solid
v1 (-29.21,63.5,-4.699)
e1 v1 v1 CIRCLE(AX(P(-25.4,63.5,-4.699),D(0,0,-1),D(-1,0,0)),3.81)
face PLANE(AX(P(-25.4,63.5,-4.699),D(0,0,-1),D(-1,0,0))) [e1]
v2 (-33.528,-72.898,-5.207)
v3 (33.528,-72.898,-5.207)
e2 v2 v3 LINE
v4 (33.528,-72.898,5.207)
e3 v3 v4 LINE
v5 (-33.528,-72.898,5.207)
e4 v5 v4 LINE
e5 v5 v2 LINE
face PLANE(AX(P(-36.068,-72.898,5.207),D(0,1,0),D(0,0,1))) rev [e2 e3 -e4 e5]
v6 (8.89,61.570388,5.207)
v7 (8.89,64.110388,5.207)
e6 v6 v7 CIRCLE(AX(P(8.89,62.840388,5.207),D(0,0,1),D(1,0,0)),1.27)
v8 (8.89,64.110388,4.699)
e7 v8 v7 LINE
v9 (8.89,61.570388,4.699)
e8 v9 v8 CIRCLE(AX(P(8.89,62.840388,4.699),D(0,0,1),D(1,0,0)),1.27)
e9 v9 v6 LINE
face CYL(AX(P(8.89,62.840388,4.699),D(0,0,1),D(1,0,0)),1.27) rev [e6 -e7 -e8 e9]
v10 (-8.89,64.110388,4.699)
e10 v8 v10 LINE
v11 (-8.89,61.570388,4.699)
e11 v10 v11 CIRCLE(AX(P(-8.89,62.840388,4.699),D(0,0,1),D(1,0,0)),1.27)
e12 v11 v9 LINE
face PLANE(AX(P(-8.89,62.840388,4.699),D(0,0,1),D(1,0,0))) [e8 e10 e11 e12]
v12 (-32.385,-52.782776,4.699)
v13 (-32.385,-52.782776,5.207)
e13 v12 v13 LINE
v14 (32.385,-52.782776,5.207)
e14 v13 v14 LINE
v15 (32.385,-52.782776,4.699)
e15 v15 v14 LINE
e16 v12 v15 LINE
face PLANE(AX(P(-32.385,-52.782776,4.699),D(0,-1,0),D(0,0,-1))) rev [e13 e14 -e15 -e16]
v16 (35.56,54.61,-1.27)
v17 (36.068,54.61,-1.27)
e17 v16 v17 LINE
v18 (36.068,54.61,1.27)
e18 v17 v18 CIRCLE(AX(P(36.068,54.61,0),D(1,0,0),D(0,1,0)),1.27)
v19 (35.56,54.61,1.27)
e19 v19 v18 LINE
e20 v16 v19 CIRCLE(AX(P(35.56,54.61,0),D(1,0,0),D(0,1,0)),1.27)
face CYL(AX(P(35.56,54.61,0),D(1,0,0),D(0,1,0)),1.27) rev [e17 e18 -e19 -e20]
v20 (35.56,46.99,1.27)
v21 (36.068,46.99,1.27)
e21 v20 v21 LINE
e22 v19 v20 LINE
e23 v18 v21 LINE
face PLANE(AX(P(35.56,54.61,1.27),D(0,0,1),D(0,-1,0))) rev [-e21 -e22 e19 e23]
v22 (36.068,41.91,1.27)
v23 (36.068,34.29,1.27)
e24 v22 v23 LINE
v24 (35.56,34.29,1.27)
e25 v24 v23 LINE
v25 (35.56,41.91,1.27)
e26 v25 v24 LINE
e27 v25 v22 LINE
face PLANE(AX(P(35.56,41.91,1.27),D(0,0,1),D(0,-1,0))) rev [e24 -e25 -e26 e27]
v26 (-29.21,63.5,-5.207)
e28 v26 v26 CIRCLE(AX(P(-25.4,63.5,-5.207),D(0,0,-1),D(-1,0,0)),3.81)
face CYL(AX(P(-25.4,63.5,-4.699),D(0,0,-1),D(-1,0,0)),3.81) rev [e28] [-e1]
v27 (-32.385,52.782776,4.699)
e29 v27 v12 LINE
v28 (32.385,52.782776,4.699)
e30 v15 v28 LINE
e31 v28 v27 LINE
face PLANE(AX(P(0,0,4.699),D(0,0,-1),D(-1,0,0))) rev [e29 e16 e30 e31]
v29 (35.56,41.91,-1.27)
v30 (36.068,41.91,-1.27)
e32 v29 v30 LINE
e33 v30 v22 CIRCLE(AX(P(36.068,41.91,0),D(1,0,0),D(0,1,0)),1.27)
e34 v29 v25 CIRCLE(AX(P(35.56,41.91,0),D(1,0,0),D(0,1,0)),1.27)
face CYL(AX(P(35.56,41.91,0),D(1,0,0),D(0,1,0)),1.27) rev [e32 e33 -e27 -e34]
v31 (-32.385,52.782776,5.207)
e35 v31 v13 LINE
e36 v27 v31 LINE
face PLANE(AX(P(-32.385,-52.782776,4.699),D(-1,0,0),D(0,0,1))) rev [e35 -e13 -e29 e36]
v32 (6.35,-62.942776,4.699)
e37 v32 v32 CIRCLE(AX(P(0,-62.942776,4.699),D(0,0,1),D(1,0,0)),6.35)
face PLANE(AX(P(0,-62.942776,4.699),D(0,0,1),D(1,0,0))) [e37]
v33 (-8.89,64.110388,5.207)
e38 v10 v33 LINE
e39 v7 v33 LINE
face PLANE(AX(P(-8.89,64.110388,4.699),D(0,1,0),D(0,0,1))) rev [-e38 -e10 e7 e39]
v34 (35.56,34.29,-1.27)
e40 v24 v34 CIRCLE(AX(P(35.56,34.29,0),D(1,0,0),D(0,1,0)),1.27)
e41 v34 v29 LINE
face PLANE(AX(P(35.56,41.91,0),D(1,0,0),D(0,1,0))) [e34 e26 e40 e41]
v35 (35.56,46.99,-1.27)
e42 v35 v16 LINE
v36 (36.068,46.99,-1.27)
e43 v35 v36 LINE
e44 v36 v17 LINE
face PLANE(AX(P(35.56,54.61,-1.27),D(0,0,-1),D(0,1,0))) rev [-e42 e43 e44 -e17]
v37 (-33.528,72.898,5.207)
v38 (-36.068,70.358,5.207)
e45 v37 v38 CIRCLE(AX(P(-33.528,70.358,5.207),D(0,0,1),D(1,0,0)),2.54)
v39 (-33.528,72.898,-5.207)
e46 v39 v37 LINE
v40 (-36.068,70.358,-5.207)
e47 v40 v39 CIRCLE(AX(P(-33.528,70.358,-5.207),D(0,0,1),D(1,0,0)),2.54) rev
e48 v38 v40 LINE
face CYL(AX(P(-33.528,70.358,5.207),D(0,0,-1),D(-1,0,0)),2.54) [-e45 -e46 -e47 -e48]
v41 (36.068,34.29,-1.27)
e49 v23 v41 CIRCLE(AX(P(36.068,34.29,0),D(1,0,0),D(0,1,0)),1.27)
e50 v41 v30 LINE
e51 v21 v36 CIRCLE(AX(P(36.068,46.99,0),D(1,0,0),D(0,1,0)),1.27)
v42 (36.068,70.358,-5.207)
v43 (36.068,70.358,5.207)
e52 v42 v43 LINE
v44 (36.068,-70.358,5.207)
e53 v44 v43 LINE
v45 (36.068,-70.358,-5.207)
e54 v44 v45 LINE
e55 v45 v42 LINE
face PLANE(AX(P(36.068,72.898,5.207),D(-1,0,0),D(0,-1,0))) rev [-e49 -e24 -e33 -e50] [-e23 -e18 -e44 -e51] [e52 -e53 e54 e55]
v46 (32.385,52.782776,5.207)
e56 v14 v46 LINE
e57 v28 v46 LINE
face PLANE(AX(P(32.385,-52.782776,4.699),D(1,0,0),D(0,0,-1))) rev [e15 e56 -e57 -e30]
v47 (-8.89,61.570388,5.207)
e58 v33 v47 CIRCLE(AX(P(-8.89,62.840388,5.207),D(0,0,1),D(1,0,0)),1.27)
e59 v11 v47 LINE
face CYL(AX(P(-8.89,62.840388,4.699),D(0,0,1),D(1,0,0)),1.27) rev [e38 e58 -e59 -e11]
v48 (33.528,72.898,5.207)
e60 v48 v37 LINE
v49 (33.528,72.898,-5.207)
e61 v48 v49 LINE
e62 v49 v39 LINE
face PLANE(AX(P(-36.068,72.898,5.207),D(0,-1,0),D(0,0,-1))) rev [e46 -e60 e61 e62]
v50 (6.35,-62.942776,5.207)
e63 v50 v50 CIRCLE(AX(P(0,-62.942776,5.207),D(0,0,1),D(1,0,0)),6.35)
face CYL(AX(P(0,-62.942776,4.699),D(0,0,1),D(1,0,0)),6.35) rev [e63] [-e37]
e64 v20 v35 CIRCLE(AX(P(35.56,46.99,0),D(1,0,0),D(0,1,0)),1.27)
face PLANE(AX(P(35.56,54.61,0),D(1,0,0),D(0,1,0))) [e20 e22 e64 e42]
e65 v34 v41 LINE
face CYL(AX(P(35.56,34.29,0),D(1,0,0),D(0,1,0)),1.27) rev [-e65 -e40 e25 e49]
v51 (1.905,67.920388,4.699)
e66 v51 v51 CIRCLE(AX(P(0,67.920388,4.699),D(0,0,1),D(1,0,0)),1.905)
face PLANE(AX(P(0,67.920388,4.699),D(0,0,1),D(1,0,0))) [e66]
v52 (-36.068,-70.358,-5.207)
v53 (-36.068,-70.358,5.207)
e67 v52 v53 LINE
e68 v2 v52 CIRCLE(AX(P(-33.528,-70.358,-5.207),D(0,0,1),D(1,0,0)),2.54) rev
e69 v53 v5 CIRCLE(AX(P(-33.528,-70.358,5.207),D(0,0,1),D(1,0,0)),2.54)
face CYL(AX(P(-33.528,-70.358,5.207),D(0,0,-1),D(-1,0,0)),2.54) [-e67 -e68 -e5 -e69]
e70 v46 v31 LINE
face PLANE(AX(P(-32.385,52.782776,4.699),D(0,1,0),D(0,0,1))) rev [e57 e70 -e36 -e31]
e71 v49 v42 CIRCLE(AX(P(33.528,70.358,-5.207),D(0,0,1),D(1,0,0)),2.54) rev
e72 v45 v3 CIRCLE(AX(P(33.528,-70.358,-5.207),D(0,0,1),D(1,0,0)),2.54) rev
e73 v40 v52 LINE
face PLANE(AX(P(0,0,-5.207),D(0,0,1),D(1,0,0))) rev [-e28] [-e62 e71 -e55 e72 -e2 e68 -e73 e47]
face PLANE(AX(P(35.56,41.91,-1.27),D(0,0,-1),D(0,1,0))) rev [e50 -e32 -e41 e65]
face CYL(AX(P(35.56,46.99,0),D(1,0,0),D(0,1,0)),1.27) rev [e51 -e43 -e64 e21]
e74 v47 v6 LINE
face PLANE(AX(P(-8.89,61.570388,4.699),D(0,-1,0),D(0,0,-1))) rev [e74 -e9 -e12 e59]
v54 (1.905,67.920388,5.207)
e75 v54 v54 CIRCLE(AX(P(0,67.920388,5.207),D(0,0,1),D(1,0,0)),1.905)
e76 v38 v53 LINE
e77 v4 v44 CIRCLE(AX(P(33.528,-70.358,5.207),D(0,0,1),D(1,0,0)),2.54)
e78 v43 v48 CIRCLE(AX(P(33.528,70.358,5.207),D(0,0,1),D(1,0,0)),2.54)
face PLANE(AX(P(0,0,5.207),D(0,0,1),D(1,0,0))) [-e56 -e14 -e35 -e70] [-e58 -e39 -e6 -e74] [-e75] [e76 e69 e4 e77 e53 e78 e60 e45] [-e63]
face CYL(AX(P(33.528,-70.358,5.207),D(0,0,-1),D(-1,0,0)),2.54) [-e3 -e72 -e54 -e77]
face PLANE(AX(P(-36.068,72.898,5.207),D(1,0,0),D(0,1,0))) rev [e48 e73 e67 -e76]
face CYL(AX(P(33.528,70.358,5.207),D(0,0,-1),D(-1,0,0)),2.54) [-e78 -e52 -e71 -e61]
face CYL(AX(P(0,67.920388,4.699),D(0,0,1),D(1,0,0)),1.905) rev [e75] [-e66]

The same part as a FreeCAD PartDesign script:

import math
import FreeCAD as App
import Part
import Sketcher
from FreeCAD import Vector
Q = App.Units.Quantity


def edges_at(feature, points):
    """Names of the edges that pass closest to the given points."""
    edges = feature.Shape.Edges
    near = lambda p: min(range(len(edges)), key=lambda i: edges[i].distToShape(Part.Vertex(*p))[0])
    return sorted({f"Edge{near(p) + 1}" for p in points})

doc = App.newDocument("Part")
params = doc.addObject("Spreadsheet::Sheet", "Params")
for row, (alias, value) in enumerate([
    ("sketch1_width", "2.84 in"),
    ("sketch1_height", "5.74 in"),
    ("pad1_length", "0.41 in"),
    ("fillet_radius", "0.1 in"),
    ("sketch2_diameter", "0.5 in"),
    ("sketch2_diameter2", "0.15 in"),
    ("sketch2_radius", "0.05 in"),
    ("sketch2_width", "0.7 in"),
    ("sketch2_width2", "2.55 in"),
    ("pocket1_length", "0.02 in"),
    ("sketch3_diameter", "0.3 in"),
    ("pocket2_length", "0.02 in"),
    ("sketch4_radius", "0.05 in"),
    ("sketch4_width", "0.3 in"),
    ("pocket3_length", "0.02 in"),
], start=1):
    params.set(f"A{row}", alias)
    params.set(f"B{row}", "=" + value)
    params.setAlias(f"B{row}", alias)

body = doc.addObject("PartDesign::Body", "Body")

# Sketch on XY plane
sketch1 = body.newObject("Sketcher::SketchObject", "Sketch")
sketch1.AttachmentSupport = (doc.getObject("XY_Plane"), [""])
sketch1.MapMode = "FlatFace"
sketch1.addGeometry([
    Part.LineSegment(Vector(-36.068, 72.898, 0), Vector(-36.068, -72.898, 0)),
    Part.LineSegment(Vector(-36.068, -72.898, 0), Vector(36.068, -72.898, 0)),
    Part.LineSegment(Vector(36.068, -72.898, 0), Vector(36.068, 72.898, 0)),
    Part.LineSegment(Vector(36.068, 72.898, 0), Vector(-36.068, 72.898, 0)),
], False)
sketch1.addConstraint([
    Sketcher.Constraint("Coincident", 0, 2, 1, 1),
    Sketcher.Constraint("Coincident", 1, 2, 2, 1),
    Sketcher.Constraint("Coincident", 2, 2, 3, 1),
    Sketcher.Constraint("Coincident", 3, 2, 0, 1),
    Sketcher.Constraint("Vertical", 0),
    Sketcher.Constraint("Horizontal", 1),
    Sketcher.Constraint("Vertical", 2),
    Sketcher.Constraint("Horizontal", 3),
    Sketcher.Constraint("Symmetric", 0, 2, 2, 2, -1, 1),
    Sketcher.Constraint("DistanceX", 1, 1, 1, 2, Q("2.84 in")),
    Sketcher.Constraint("DistanceY", 0, 2, 0, 1, Q("5.74 in")),
])
sketch1.setExpression("Constraints[9]", "Params.sketch1_width")
sketch1.setExpression("Constraints[10]", "Params.sketch1_height")
pad1 = body.newObject("PartDesign::Pad", "Pad")
pad1.Profile = sketch1
pad1.setExpression("Length", "Params.pad1_length")
pad1.Midplane = True
doc.recompute()

fillet = body.newObject("PartDesign::Fillet", "Fillet")
fillet.Base = (pad1, edges_at(pad1, [
    (36.068, -72.898, 0),
    (-36.068, -72.898, 0),
    (-36.068, 72.898, 0),
    (36.068, 72.898, 0),
]))
fillet.setExpression("Radius", "Params.fillet_radius")

# Sketch on XY plane
sketch2 = body.newObject("Sketcher::SketchObject", "Sketch001")
sketch2.AttachmentSupport = (doc.getObject("XY_Plane"), [""])
sketch2.MapMode = "FlatFace"
sketch2.AttachmentOffset = App.Placement(Vector(0, 0, 0.205 * 25.4), App.Rotation())
sketch2.addGeometry([
    Part.Circle(Vector(0, -62.942776, 0), Vector(0, 0, 1), 6.35),  # 0
    Part.Circle(Vector(0, 67.920388, 0), Vector(0, 0, 1), 1.905),  # 1
    Part.LineSegment(Vector(-32.385, 52.782776, 0), Vector(-32.385, -52.782776, 0)),  # 2
    Part.LineSegment(Vector(-32.385, -52.782776, 0), Vector(32.385, -52.782776, 0)),  # 3
    Part.LineSegment(Vector(32.385, -52.782776, 0), Vector(32.385, 52.782776, 0)),  # 4
    Part.LineSegment(Vector(32.385, 52.782776, 0), Vector(-32.385, 52.782776, 0)),  # 5
    Part.LineSegment(Vector(8.89, 64.110388, 0), Vector(-8.89, 64.110388, 0)),  # 6
    Part.ArcOfCircle(Part.Circle(Vector(-8.89, 62.840388, 0), Vector(0, 0, 1), 1.27), math.radians(90), math.radians(270)),  # 7
    Part.LineSegment(Vector(-8.89, 61.570388, 0), Vector(8.89, 61.570388, 0)),  # 8
    Part.ArcOfCircle(Part.Circle(Vector(8.89, 62.840388, 0), Vector(0, 0, 1), 1.27), math.radians(-90), math.radians(90)),  # 9
], False)
sketch2.addConstraint([
    Sketcher.Constraint("Coincident", 2, 2, 3, 1),
    Sketcher.Constraint("Coincident", 3, 2, 4, 1),
    Sketcher.Constraint("Coincident", 4, 2, 5, 1),
    Sketcher.Constraint("Coincident", 5, 2, 2, 1),
    Sketcher.Constraint("Tangent", 6, 2, 7, 1),
    Sketcher.Constraint("Tangent", 7, 2, 8, 1),
    Sketcher.Constraint("Tangent", 8, 2, 9, 1),
    Sketcher.Constraint("Tangent", 9, 2, 6, 1),
    Sketcher.Constraint("Vertical", 2),
    Sketcher.Constraint("Horizontal", 3),
    Sketcher.Constraint("Vertical", 4),
    Sketcher.Constraint("Horizontal", 5),
    Sketcher.Constraint("Horizontal", 6),
    Sketcher.Constraint("Horizontal", 8),
    Sketcher.Constraint("Symmetric", 2, 2, 4, 2, -1, 1),
    Sketcher.Constraint("PointOnObject", 0, 3, -2),
    Sketcher.Constraint("PointOnObject", 1, 3, -2),
    Sketcher.Constraint("Diameter", 0, Q("0.5 in")),
    Sketcher.Constraint("Diameter", 1, Q("0.15 in")),
    Sketcher.Constraint("Radius", 7, Q("0.05 in")),
    Sketcher.Constraint("DistanceX", 6, 2, 6, 1, Q("0.7 in")),
    Sketcher.Constraint("DistanceX", 3, 1, 3, 2, Q("2.55 in")),
    Sketcher.Constraint("DistanceY", 7, 3, 1, 3, Q("0.2 in")),
    Sketcher.Constraint("DistanceY", 0, 3, 2, 2, Q("0.4 in")),
    Sketcher.Constraint("DistanceX", 7, 3, -1, 1, Q("0.35 in")),
    Sketcher.Constraint("DistanceY", 2, 2, 2, 1, 105.565551),
    Sketcher.Constraint("DistanceY", -1, 1, 1, 3, 67.920388),
])
sketch2.setExpression("Constraints[17]", "Params.sketch2_diameter")
sketch2.setExpression("Constraints[18]", "Params.sketch2_diameter2")
sketch2.setExpression("Constraints[19]", "Params.sketch2_radius")
sketch2.setExpression("Constraints[20]", "Params.sketch2_width")
sketch2.setExpression("Constraints[21]", "Params.sketch2_width2")
pocket1 = body.newObject("PartDesign::Pocket", "Pocket")
pocket1.Profile = sketch2
pocket1.setExpression("Length", "Params.pocket1_length")

# Sketch on XY plane
sketch3 = body.newObject("Sketcher::SketchObject", "Sketch002")
sketch3.AttachmentSupport = (doc.getObject("XY_Plane"), [""])
sketch3.MapMode = "FlatFace"
sketch3.AttachmentOffset = App.Placement(Vector(0, 0, -0.205 * 25.4), App.Rotation())
sketch3.addGeometry(Part.Circle(Vector(-25.4, 63.5, 0), Vector(0, 0, 1), 3.81), False)
sketch3.addConstraint([
    Sketcher.Constraint("Diameter", 0, Q("0.3 in")),
    Sketcher.Constraint("DistanceX", 0, 3, -1, 1, Q("1 in")),
    Sketcher.Constraint("DistanceY", -1, 1, 0, 3, Q("2.5 in")),
])
sketch3.setExpression("Constraints[0]", "Params.sketch3_diameter")
pocket2 = body.newObject("PartDesign::Pocket", "Pocket001")
pocket2.Profile = sketch3
pocket2.setExpression("Length", "Params.pocket2_length")
pocket2.Reversed = True

# Sketch on YZ plane
sketch4 = body.newObject("Sketcher::SketchObject", "Sketch003")
sketch4.AttachmentSupport = (doc.getObject("YZ_Plane"), [""])
sketch4.MapMode = "FlatFace"
sketch4.AttachmentOffset = App.Placement(Vector(0, 0, 1.42 * 25.4), App.Rotation())
sketch4.addGeometry([
    Part.LineSegment(Vector(46.99, -1.27, 0), Vector(54.61, -1.27, 0)),  # 0
    Part.ArcOfCircle(Part.Circle(Vector(54.61, 0, 0), Vector(0, 0, 1), 1.27), math.radians(-90), math.radians(90)),  # 1
    Part.LineSegment(Vector(54.61, 1.27, 0), Vector(46.99, 1.27, 0)),  # 2
    Part.ArcOfCircle(Part.Circle(Vector(46.99, 0, 0), Vector(0, 0, 1), 1.27), math.radians(90), math.radians(270)),  # 3
    Part.LineSegment(Vector(34.29, -1.27, 0), Vector(41.91, -1.27, 0)),  # 4
    Part.ArcOfCircle(Part.Circle(Vector(41.91, 0, 0), Vector(0, 0, 1), 1.27), math.radians(-90), math.radians(90)),  # 5
    Part.LineSegment(Vector(41.91, 1.27, 0), Vector(34.29, 1.27, 0)),  # 6
    Part.ArcOfCircle(Part.Circle(Vector(34.29, 0, 0), Vector(0, 0, 1), 1.27), math.radians(90), math.radians(270)),  # 7
], False)
sketch4.addConstraint([
    Sketcher.Constraint("Tangent", 0, 2, 1, 1),
    Sketcher.Constraint("Tangent", 1, 2, 2, 1),
    Sketcher.Constraint("Tangent", 2, 2, 3, 1),
    Sketcher.Constraint("Tangent", 3, 2, 0, 1),
    Sketcher.Constraint("Tangent", 4, 2, 5, 1),
    Sketcher.Constraint("Tangent", 5, 2, 6, 1),
    Sketcher.Constraint("Tangent", 6, 2, 7, 1),
    Sketcher.Constraint("Tangent", 7, 2, 4, 1),
    Sketcher.Constraint("Horizontal", 0),
    Sketcher.Constraint("Horizontal", 2),
    Sketcher.Constraint("Horizontal", 4),
    Sketcher.Constraint("Horizontal", 6),
    Sketcher.Constraint("Equal", 3, 5),
    Sketcher.Constraint("PointOnObject", 1, 3, -1),
    Sketcher.Constraint("PointOnObject", 5, 3, -1),
    Sketcher.Constraint("Equal", 2, 4),
    Sketcher.Constraint("Radius", 1, Q("0.05 in")),
    Sketcher.Constraint("DistanceX", 0, 1, 0, 2, Q("0.3 in")),
    Sketcher.Constraint("DistanceX", 5, 3, 3, 3, Q("0.2 in")),
    Sketcher.Constraint("DistanceX", -1, 1, 1, 3, Q("2.15 in")),
])
sketch4.setExpression("Constraints[16]", "Params.sketch4_radius")
sketch4.setExpression("Constraints[17]", "Params.sketch4_width")
pocket3 = body.newObject("PartDesign::Pocket", "Pocket002")
pocket3.Profile = sketch4
pocket3.setExpression("Length", "Params.pocket3_length")

doc.recompute()
